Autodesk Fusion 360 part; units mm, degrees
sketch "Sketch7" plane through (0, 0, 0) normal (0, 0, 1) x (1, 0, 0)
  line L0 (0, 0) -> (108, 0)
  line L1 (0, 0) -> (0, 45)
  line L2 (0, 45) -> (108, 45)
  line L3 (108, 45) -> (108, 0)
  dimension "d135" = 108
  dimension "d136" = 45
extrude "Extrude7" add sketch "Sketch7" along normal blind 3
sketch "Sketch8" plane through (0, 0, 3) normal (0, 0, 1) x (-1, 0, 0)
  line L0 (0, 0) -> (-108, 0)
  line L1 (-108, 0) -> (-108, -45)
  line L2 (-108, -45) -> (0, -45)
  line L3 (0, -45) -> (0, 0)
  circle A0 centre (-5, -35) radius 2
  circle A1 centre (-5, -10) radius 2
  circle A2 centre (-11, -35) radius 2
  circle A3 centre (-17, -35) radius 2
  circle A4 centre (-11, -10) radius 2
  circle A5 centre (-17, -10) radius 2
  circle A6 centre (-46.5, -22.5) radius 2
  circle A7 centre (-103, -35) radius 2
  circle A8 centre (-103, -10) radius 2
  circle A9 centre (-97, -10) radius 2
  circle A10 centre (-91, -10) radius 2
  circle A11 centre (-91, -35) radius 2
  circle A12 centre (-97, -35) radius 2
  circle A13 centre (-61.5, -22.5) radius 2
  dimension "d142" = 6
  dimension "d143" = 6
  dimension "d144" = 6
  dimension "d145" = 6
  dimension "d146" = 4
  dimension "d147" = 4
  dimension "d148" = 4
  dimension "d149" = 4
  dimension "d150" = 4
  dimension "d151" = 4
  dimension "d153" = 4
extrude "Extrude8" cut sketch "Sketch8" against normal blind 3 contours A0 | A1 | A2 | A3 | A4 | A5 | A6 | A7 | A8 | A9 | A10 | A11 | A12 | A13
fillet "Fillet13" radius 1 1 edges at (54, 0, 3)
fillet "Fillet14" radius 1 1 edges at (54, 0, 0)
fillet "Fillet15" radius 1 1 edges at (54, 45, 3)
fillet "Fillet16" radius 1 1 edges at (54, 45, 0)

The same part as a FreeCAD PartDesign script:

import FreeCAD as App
import Part
import Sketcher


def edges_at(feature, points):
    """Names of the edges that pass closest to the given points."""
    edges = feature.Shape.Edges
    near = lambda p: min(range(len(edges)), key=lambda i: edges[i].distToShape(Part.Vertex(*p))[0])
    return sorted({f"Edge{near(p) + 1}" for p in points})


def add_polygon(sketch, points):
    """Adds a closed chain of lines whose ends are joined by coincident constraints."""
    first, n = sketch.GeometryCount, len(points)
    for a, b in zip(points, points[1:] + points[:1]):
        sketch.addGeometry(Part.LineSegment(App.Vector(*a, 0), App.Vector(*b, 0)), False)
    for i in range(n):
        sketch.addConstraint(Sketcher.Constraint("Coincident", first + i, 2, first + (i + 1) % n, 1))

doc = App.newDocument("Part")
body = doc.addObject("PartDesign::Body", "Body")

sketch1 = body.newObject("Sketcher::SketchObject", "Sketch")
sketch1.AttachmentSupport = (doc.getObject("XY_Plane"), [""])
sketch1.MapMode = "FlatFace"
add_polygon(sketch1, [(0, 45), (0, 0), (108, 0), (108, 45)])
sketch1.addConstraint([
    Sketcher.Constraint("Vertical", 0),
    Sketcher.Constraint("Horizontal", 1),
    Sketcher.Constraint("Vertical", 2),
    Sketcher.Constraint("Horizontal", 3),
    Sketcher.Constraint("Coincident", 0, 2, -1, 1),
    Sketcher.Constraint("DistanceX", 1, 1, 1, 2, 108.0),
    Sketcher.Constraint("DistanceY", 0, 2, 0, 1, 45.0),
])
pad1 = body.newObject("PartDesign::Pad", "Pad")
pad1.Profile = sketch1
pad1.Length = 3

sketch2 = body.newObject("Sketcher::SketchObject", "Sketch001")
sketch2.AttachmentSupport = (doc.getObject("XY_Plane"), [""])
sketch2.MapMode = "FlatFace"
sketch2.AttachmentOffset = App.Placement(App.Vector(0, 0, 3), App.Rotation())
sketch2.addGeometry([
    Part.Circle(App.Vector(5, 35, 0), App.Vector(0, 0, 1), 2),
    Part.Circle(App.Vector(5, 10, 0), App.Vector(0, 0, 1), 2),
    Part.Circle(App.Vector(11, 35, 0), App.Vector(0, 0, 1), 2),
    Part.Circle(App.Vector(17, 35, 0), App.Vector(0, 0, 1), 2),
    Part.Circle(App.Vector(11, 10, 0), App.Vector(0, 0, 1), 2),
    Part.Circle(App.Vector(17, 10, 0), App.Vector(0, 0, 1), 2),
    Part.Circle(App.Vector(46.5, 22.5, 0), App.Vector(0, 0, 1), 2),
    Part.Circle(App.Vector(103, 35, 0), App.Vector(0, 0, 1), 2),
    Part.Circle(App.Vector(103, 10, 0), App.Vector(0, 0, 1), 2),
    Part.Circle(App.Vector(97, 10, 0), App.Vector(0, 0, 1), 2),
    Part.Circle(App.Vector(91, 10, 0), App.Vector(0, 0, 1), 2),
    Part.Circle(App.Vector(91, 35, 0), App.Vector(0, 0, 1), 2),
    Part.Circle(App.Vector(97, 35, 0), App.Vector(0, 0, 1), 2),
    Part.Circle(App.Vector(61.5, 22.5, 0), App.Vector(0, 0, 1), 2),
], False)
sketch2.addConstraint([
    Sketcher.Constraint("Equal", 0, 1),
    Sketcher.Constraint("Equal", 1, 2),
    Sketcher.Constraint("Equal", 2, 3),
    Sketcher.Constraint("Equal", 3, 4),
    Sketcher.Constraint("Equal", 4, 5),
    Sketcher.Constraint("Equal", 5, 6),
    Sketcher.Constraint("Equal", 6, 7),
    Sketcher.Constraint("Equal", 7, 8),
    Sketcher.Constraint("Equal", 8, 9),
    Sketcher.Constraint("Equal", 9, 10),
    Sketcher.Constraint("Equal", 10, 11),
    Sketcher.Constraint("Equal", 11, 12),
    Sketcher.Constraint("Equal", 12, 13),
    Sketcher.Constraint("Horizontal", 0, 3, 2, 3),
    Sketcher.Constraint("Horizontal", 2, 3, 3, 3),
    Sketcher.Constraint("Horizontal", 1, 3, 4, 3),
    Sketcher.Constraint("Horizontal", 4, 3, 5, 3),
    Sketcher.Constraint("Horizontal", 3, 3, 7, 3),
    Sketcher.Constraint("Horizontal", 5, 3, 8, 3),
    Sketcher.Constraint("Horizontal", 8, 3, 9, 3),
    Sketcher.Constraint("Horizontal", 9, 3, 10, 3),
    Sketcher.Constraint("Horizontal", 7, 3, 11, 3),
    Sketcher.Constraint("Horizontal", 11, 3, 12, 3),
    Sketcher.Constraint("Horizontal", 6, 3, 13, 3),
    Sketcher.Constraint("Vertical", 0, 3, 1, 3),
    Sketcher.Constraint("Vertical", 2, 3, 4, 3),
    Sketcher.Constraint("Vertical", 3, 3, 5, 3),
    Sketcher.Constraint("Vertical", 7, 3, 8, 3),
    Sketcher.Constraint("Vertical", 10, 3, 11, 3),
    Sketcher.Constraint("Vertical", 9, 3, 12, 3),
    Sketcher.Constraint("Diameter", 0, 4.0),
    Sketcher.Constraint("DistanceX", 0, 3, 2, 3, 6.0),
    Sketcher.Constraint("DistanceX", 2, 3, 3, 3, 6.0),
    Sketcher.Constraint("DistanceX", 9, 3, 8, 3, 6.0),
    Sketcher.Constraint("DistanceX", 10, 3, 9, 3, 6.0),
    Sketcher.Constraint("DistanceX", -1, 1, 0, 3, 5.0),
    Sketcher.Constraint("DistanceY", -1, 1, 0, 3, 35.0),
    Sketcher.Constraint("DistanceY", -1, 1, 1, 3, 10.0),
    Sketcher.Constraint("DistanceX", -1, 1, 7, 3, 103.0),
    Sketcher.Constraint("DistanceX", 6, 3, 13, 3, 15.0),
    Sketcher.Constraint("DistanceX", -1, 1, 6, 3, 46.5),
    Sketcher.Constraint("DistanceY", -1, 1, 6, 3, 22.5),
])
pocket1 = body.newObject("PartDesign::Pocket", "Pocket")
pocket1.Profile = sketch2
pocket1.Length = 3
doc.recompute()

fillet = body.newObject("PartDesign::Fillet", "Fillet")
fillet.Base = (pocket1, edges_at(pocket1, [(54, 0, 3)]))
fillet.Radius = 1
doc.recompute()

fillet2 = body.newObject("PartDesign::Fillet", "Fillet001")
fillet2.Base = (fillet, edges_at(fillet, [(54, 0, 0)]))
fillet2.Radius = 1
doc.recompute()

fillet3 = body.newObject("PartDesign::Fillet", "Fillet002")
fillet3.Base = (fillet2, edges_at(fillet2, [(54, 45, 3)]))
fillet3.Radius = 1
doc.recompute()

fillet4 = body.newObject("PartDesign::Fillet", "Fillet003")
fillet4.Base = (fillet3, edges_at(fillet3, [(54, 45, 0)]))
fillet4.Radius = 1

doc.recompute()
